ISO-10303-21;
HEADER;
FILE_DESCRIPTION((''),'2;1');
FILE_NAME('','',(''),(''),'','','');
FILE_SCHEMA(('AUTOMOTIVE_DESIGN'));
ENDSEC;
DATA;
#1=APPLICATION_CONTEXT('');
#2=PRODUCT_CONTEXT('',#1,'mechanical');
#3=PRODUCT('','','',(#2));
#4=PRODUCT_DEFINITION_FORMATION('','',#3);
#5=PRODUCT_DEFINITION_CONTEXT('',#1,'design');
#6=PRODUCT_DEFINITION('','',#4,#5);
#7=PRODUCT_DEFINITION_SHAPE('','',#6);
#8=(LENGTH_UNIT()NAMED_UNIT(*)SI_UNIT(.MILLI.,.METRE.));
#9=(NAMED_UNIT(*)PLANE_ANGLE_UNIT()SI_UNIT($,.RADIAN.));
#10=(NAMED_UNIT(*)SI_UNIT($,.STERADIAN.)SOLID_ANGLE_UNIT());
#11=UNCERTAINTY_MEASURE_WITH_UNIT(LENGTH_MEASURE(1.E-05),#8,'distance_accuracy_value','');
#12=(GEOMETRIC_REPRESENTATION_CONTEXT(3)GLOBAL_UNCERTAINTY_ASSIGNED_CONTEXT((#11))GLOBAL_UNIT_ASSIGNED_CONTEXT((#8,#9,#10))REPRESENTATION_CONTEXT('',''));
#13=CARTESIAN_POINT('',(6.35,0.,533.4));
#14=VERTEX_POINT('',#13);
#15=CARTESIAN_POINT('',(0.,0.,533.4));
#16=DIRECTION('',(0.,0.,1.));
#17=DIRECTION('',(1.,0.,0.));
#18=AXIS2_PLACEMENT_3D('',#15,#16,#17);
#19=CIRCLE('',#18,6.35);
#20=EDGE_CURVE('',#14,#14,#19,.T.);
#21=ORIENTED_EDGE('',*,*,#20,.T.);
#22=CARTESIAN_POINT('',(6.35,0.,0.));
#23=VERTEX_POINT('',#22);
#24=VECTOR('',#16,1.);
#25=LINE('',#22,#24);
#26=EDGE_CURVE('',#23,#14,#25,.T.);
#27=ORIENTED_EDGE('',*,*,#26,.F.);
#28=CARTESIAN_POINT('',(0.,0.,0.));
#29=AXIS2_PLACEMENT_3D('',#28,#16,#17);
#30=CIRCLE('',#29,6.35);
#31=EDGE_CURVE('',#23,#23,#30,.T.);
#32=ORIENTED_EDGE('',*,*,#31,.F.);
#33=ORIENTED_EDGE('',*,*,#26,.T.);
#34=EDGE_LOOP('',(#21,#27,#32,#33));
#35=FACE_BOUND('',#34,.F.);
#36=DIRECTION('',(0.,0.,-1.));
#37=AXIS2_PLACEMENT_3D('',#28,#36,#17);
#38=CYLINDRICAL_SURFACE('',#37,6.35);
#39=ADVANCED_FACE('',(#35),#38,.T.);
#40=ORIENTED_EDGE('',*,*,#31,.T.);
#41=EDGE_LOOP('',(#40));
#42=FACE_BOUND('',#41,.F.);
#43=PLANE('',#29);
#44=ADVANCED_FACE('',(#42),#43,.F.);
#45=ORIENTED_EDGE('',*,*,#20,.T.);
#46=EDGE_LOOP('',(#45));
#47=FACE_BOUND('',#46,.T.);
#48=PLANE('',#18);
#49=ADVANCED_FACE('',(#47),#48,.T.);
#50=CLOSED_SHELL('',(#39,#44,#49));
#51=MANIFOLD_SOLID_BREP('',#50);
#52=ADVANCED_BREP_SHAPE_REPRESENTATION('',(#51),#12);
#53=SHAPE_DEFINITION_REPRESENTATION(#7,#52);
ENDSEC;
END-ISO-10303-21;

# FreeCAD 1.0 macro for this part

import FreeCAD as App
import Part
import Sketcher
from FreeCAD import Vector
Q = App.Units.Quantity

doc = App.newDocument("Part")
params = doc.addObject("Spreadsheet::Sheet", "Params")
for row, (alias, value) in enumerate([
    ("sketch1_diameter", "0.5 in"),
    ("pad1_length", "21 in"),
], start=1):
    params.set(f"A{row}", alias)
    params.set(f"B{row}", "=" + value)
    params.setAlias(f"B{row}", alias)

body = doc.addObject("PartDesign::Body", "Body")

# Sketch on XY plane
sketch1 = body.newObject("Sketcher::SketchObject", "Sketch")
sketch1.AttachmentSupport = (doc.getObject("XY_Plane"), [""])
sketch1.MapMode = "FlatFace"
sketch1.addGeometry(Part.Circle(Vector(0, 0, 0), Vector(0, 0, 1), 6.35), False)
sketch1.addConstraint([
    Sketcher.Constraint("Coincident", 0, 3, -1, 1),
    Sketcher.Constraint("Diameter", 0, Q("0.5 in")),
])
sketch1.setExpression("Constraints[1]", "Params.sketch1_diameter")
pad1 = body.newObject("PartDesign::Pad", "Pad")
pad1.Profile = sketch1
pad1.setExpression("Length", "Params.pad1_length")

doc.recompute()
